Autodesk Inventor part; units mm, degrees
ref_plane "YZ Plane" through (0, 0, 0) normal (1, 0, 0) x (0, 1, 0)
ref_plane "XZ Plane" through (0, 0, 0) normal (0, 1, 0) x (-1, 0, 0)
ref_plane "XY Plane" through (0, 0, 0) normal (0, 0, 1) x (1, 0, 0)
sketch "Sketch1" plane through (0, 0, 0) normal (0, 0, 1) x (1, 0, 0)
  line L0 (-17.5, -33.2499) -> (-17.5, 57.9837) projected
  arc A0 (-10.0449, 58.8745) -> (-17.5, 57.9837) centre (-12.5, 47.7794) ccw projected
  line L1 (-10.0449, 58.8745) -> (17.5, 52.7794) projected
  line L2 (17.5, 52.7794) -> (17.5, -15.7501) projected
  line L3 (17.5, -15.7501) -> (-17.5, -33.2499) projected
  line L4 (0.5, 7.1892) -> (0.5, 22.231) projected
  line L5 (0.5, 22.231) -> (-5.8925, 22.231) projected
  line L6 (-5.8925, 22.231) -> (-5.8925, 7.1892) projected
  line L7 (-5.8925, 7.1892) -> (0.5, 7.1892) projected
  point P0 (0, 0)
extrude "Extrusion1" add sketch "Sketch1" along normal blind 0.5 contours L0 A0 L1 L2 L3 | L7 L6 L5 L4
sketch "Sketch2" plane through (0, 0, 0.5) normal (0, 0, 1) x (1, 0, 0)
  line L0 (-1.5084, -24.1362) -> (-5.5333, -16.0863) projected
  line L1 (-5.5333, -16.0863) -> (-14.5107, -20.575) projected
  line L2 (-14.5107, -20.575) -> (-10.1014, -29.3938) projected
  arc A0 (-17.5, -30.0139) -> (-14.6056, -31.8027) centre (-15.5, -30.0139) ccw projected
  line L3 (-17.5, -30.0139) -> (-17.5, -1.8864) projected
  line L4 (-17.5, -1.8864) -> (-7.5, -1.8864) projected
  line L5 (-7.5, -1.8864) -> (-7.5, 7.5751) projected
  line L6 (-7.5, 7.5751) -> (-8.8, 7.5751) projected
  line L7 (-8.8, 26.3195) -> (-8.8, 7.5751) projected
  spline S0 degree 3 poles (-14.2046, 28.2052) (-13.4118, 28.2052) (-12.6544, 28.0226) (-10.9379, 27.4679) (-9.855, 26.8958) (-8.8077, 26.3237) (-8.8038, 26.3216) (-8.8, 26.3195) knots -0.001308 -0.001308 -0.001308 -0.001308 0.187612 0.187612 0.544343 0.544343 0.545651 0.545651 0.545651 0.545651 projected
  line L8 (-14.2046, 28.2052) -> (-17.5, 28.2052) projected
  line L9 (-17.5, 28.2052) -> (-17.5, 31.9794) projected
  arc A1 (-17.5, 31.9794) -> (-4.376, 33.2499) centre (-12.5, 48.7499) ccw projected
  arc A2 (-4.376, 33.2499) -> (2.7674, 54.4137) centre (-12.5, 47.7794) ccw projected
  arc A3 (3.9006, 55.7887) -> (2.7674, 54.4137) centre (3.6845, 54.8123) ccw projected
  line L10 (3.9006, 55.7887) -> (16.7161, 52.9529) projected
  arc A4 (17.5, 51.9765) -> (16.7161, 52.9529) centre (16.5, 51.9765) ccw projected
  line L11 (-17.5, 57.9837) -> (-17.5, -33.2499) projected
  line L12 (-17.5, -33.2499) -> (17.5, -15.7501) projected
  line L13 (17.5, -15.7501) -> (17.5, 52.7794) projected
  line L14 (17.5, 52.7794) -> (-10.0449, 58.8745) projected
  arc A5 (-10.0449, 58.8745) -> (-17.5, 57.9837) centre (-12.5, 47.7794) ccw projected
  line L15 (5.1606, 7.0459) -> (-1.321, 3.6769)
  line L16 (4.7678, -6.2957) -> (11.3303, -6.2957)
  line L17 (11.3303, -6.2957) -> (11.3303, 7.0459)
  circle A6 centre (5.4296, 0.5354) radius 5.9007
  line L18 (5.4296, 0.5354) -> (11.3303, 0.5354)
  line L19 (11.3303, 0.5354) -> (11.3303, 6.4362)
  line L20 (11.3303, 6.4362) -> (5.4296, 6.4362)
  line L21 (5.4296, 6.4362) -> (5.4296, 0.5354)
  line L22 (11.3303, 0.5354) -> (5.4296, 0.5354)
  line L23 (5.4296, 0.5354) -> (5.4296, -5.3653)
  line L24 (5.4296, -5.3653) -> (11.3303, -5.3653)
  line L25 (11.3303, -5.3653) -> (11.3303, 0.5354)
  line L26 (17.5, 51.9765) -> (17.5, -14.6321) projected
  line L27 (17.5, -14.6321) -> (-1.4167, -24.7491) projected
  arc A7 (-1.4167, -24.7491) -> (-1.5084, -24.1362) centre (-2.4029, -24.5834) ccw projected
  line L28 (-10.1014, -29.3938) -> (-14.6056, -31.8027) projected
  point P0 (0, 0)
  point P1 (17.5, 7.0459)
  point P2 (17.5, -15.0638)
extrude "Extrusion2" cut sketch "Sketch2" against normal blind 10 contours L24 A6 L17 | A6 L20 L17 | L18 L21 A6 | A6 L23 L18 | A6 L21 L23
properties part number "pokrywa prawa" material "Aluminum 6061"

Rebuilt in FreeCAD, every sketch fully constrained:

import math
import FreeCAD as App
import Part
import Sketcher

V = App.Vector
Q = App.Units.Quantity

doc = App.newDocument("Part")
body = doc.addObject("PartDesign::Body", "Body")

# Sketch on XY plane
sketch1 = body.newObject("Sketcher::SketchObject", "Sketch")
sketch1.AttachmentSupport = (doc.getObject("XY_Plane"), [""])
sketch1.MapMode = "FlatFace"
sketch1.addGeometry(Part.LineSegment(V(-18, 58, 0), V(-18, -33, 0)), False)
sketch1.addGeometry(Part.LineSegment(V(-18, -33, 0), V(18, -16, 0)), False)
sketch1.addGeometry(Part.LineSegment(V(18, -16, 0), V(18, 53, 0)), False)
sketch1.addGeometry(Part.LineSegment(V(18, 53, 0), V(-10, 59, 0)), False)
sketch1.addGeometry(Part.ArcOfCircle(Part.Circle(V(-12, 48, 0), V(0, 0, 1), 11), math.radians(78), math.radians(116)), False)
sketch1.addConstraint(Sketcher.Constraint("Coincident", 0, 2, 1, 1))
sketch1.addConstraint(Sketcher.Constraint("Coincident", 1, 2, 2, 1))
sketch1.addConstraint(Sketcher.Constraint("Coincident", 2, 2, 3, 1))
sketch1.addConstraint(Sketcher.Constraint("Tangent", 3, 2, 4, 1))
sketch1.addConstraint(Sketcher.Constraint("Coincident", 4, 2, 0, 1))
sketch1.addConstraint(Sketcher.Constraint("Vertical", 0))
sketch1.addConstraint(Sketcher.Constraint("Vertical", 2))
sketch1.addConstraint(Sketcher.Constraint("DistanceX", 0, 2, 4, 3, Q("5 mm")))
sketch1.addConstraint(Sketcher.Constraint("DistanceX", 0, 2, 1, 2, Q("35 mm")))
sketch1.addConstraint(Sketcher.Constraint("DistanceY", 4, 3, 2, 2, Q("5 mm")))
sketch1.addConstraint(Sketcher.Constraint("DistanceX", 4, 3, -1, 1, Q("12.5 mm")))
sketch1.addConstraint(Sketcher.Constraint("Radius", 4, Q("11.3635 mm")))
sketch1.addConstraint(Sketcher.Constraint("DistanceY", 0, 2, -1, 1, Q("33.25 mm")))
sketch1.addConstraint(Sketcher.Constraint("DistanceY", 1, 2, -1, 1, Q("15.75 mm")))
sketch1.addConstraint(Sketcher.Constraint("DistanceY", 0, 2, 0, 1, Q("91.2336 mm")))
pad1 = body.newObject("PartDesign::Pad", "Pad")
pad1.Profile = sketch1
pad1.Length = 0.5

# Sketch on XY plane
sketch2 = body.newObject("Sketcher::SketchObject", "Sketch001")
sketch2.AttachmentSupport = (doc.getObject("XY_Plane"), [""])
sketch2.MapMode = "FlatFace"
sketch2.AttachmentOffset = App.Placement(V(0, 0, 0.5), App.Rotation())
sketch2.addGeometry(Part.LineSegment(V(5, -5, 0), V(11, -5, 0)), False)
sketch2.addGeometry(Part.LineSegment(V(11, -5, 0), V(11, 6, 0)), False)
sketch2.addGeometry(Part.LineSegment(V(11, 6, 0), V(5, 6, 0)), False)
sketch2.addGeometry(Part.ArcOfCircle(Part.Circle(V(5, 1, 0), V(0, 0, 1), 6), math.radians(90), math.radians(270)), False)
sketch2.addConstraint(Sketcher.Constraint("Coincident", 0, 2, 1, 1))
sketch2.addConstraint(Sketcher.Constraint("Coincident", 1, 2, 2, 1))
sketch2.addConstraint(Sketcher.Constraint("Tangent", 2, 2, 3, 1))
sketch2.addConstraint(Sketcher.Constraint("Tangent", 3, 2, 0, 1))
sketch2.addConstraint(Sketcher.Constraint("Horizontal", 0))
sketch2.addConstraint(Sketcher.Constraint("Vertical", 1))
sketch2.addConstraint(Sketcher.Constraint("Horizontal", 2))
sketch2.addConstraint(Sketcher.Constraint("Radius", 3, Q("5.9007 mm")))
sketch2.addConstraint(Sketcher.Constraint("DistanceX", 0, 1, 0, 2, Q("5.9007 mm")))
sketch2.addConstraint(Sketcher.Constraint("DistanceX", -1, 1, 3, 3, Q("5.4296 mm")))
sketch2.addConstraint(Sketcher.Constraint("DistanceY", -1, 1, 3, 3, Q("0.5354 mm")))
pocket1 = body.newObject("PartDesign::Pocket", "Pocket")
pocket1.Profile = sketch2
pocket1.Length = 10

doc.recompute()
